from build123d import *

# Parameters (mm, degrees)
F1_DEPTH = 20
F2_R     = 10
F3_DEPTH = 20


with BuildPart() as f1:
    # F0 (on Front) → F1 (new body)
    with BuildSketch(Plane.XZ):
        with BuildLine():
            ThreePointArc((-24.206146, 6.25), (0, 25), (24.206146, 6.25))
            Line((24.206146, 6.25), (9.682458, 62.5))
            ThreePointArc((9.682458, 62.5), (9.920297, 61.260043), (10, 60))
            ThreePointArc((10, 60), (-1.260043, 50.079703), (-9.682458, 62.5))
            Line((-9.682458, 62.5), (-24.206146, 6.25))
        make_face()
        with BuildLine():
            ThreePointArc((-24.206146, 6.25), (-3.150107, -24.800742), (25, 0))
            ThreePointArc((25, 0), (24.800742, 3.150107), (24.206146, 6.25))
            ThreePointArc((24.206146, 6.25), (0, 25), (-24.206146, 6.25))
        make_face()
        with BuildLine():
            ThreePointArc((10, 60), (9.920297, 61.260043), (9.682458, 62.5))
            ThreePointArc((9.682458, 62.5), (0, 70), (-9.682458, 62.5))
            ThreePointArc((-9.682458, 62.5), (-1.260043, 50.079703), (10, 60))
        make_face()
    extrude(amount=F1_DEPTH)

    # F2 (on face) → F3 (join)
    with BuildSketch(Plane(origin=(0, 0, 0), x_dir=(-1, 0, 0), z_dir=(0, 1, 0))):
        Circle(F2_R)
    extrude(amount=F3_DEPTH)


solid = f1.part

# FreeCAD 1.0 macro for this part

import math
import FreeCAD as App
import Part
import Sketcher

V = App.Vector
Q = App.Units.Quantity

doc = App.newDocument("Part")
params = doc.addObject("Spreadsheet::Sheet", "Params")
for row, (alias, value) in enumerate([
    ("sketch1_radius", "10 mm"),
    ("sketch1_radius2", "25 mm"),
    ("pad1_length", "20 mm"),
    ("sketch2_diameter", "20 mm"),
    ("pad2_length", "20 mm"),
], start=1):
    params.set(f"A{row}", alias)
    params.set(f"B{row}", "=" + value)
    params.setAlias(f"B{row}", alias)

body = doc.addObject("PartDesign::Body", "Body")

# Sketch on XZ plane
sketch1 = body.newObject("Sketcher::SketchObject", "Sketch")
sketch1.AttachmentSupport = (doc.getObject("XZ_Plane"), [""])
sketch1.MapMode = "FlatFace"
sketch1.addGeometry([
    Part.LineSegment(V(24.206146, 6.25, 0), V(9.682458, 62.5, 0)),  # 0
    Part.ArcOfCircle(Part.Circle(V(0, 60, 0), V(0, 0, 1), 10), math.radians(14.47751), math.radians(165.52249)),  # 1
    Part.LineSegment(V(-9.682458, 62.5, 0), V(-24.206146, 6.25, 0)),  # 2
    Part.ArcOfCircle(Part.Circle(V(0, 0, 0), V(0, 0, 1), 25), math.radians(165.522489), math.radians(359.999999)),  # 3
    Part.ArcOfCircle(Part.Circle(V(-0.00006, -0.000007, 0), V(0, 0, 1), 25.00006), math.radians(0.000017), math.radians(14.477494)),  # 4
], False)
sketch1.addConstraint([
    Sketcher.Constraint("Coincident", 0, 2, 1, 1),
    Sketcher.Constraint("Coincident", 1, 2, 2, 1),
    Sketcher.Constraint("Coincident", 2, 2, 3, 1),
    Sketcher.Constraint("Coincident", 3, 2, 4, 1),
    Sketcher.Constraint("Coincident", 4, 2, 0, 1),
    Sketcher.Constraint("Coincident", 3, 3, -1, 1),
    Sketcher.Constraint("PointOnObject", 1, 3, -2),
    Sketcher.Constraint("PointOnObject", 3, 2, -1),
    Sketcher.Constraint("Radius", 1, Q("10 mm")),
    Sketcher.Constraint("Radius", 3, Q("25 mm")),
    Sketcher.Constraint("DistanceY", -1, 1, 1, 3, Q("60 mm")),
    Sketcher.Constraint("DistanceY", -1, 1, 0, 2, Q("62.5 mm")),
    Sketcher.Constraint("DistanceY", -1, 1, 1, 2, Q("62.5 mm")),
    Sketcher.Constraint("DistanceY", -1, 1, 2, 2, Q("6.25 mm")),
    Sketcher.Constraint("DistanceY", -1, 1, 4, 2, Q("6.25 mm")),
    Sketcher.Constraint("Radius", 4, Q("25.00006 mm")),
    Sketcher.Constraint("Distance", 0, Q("58.09475 mm")),
])
sketch1.setExpression("Constraints[8]", "Params.sketch1_radius")
sketch1.setExpression("Constraints[9]", "Params.sketch1_radius2")
pad1 = body.newObject("PartDesign::Pad", "Pad")
pad1.Profile = sketch1
pad1.setExpression("Length", "Params.pad1_length")

# Sketch on XZ plane
sketch2 = body.newObject("Sketcher::SketchObject", "Sketch001")
sketch2.AttachmentSupport = (doc.getObject("XZ_Plane"), [""])
sketch2.MapMode = "FlatFace"
sketch2.addGeometry(Part.Circle(V(0, 0, 0), V(0, 0, 1), 10), False)
sketch2.addConstraint([
    Sketcher.Constraint("Coincident", 0, 3, -1, 1),
    Sketcher.Constraint("Diameter", 0, Q("20 mm")),
])
sketch2.setExpression("Constraints[1]", "Params.sketch2_diameter")
pad2 = body.newObject("PartDesign::Pad", "Pad001")
pad2.Profile = sketch2
pad2.setExpression("Length", "Params.pad2_length")
pad2.Reversed = True

doc.recompute()
